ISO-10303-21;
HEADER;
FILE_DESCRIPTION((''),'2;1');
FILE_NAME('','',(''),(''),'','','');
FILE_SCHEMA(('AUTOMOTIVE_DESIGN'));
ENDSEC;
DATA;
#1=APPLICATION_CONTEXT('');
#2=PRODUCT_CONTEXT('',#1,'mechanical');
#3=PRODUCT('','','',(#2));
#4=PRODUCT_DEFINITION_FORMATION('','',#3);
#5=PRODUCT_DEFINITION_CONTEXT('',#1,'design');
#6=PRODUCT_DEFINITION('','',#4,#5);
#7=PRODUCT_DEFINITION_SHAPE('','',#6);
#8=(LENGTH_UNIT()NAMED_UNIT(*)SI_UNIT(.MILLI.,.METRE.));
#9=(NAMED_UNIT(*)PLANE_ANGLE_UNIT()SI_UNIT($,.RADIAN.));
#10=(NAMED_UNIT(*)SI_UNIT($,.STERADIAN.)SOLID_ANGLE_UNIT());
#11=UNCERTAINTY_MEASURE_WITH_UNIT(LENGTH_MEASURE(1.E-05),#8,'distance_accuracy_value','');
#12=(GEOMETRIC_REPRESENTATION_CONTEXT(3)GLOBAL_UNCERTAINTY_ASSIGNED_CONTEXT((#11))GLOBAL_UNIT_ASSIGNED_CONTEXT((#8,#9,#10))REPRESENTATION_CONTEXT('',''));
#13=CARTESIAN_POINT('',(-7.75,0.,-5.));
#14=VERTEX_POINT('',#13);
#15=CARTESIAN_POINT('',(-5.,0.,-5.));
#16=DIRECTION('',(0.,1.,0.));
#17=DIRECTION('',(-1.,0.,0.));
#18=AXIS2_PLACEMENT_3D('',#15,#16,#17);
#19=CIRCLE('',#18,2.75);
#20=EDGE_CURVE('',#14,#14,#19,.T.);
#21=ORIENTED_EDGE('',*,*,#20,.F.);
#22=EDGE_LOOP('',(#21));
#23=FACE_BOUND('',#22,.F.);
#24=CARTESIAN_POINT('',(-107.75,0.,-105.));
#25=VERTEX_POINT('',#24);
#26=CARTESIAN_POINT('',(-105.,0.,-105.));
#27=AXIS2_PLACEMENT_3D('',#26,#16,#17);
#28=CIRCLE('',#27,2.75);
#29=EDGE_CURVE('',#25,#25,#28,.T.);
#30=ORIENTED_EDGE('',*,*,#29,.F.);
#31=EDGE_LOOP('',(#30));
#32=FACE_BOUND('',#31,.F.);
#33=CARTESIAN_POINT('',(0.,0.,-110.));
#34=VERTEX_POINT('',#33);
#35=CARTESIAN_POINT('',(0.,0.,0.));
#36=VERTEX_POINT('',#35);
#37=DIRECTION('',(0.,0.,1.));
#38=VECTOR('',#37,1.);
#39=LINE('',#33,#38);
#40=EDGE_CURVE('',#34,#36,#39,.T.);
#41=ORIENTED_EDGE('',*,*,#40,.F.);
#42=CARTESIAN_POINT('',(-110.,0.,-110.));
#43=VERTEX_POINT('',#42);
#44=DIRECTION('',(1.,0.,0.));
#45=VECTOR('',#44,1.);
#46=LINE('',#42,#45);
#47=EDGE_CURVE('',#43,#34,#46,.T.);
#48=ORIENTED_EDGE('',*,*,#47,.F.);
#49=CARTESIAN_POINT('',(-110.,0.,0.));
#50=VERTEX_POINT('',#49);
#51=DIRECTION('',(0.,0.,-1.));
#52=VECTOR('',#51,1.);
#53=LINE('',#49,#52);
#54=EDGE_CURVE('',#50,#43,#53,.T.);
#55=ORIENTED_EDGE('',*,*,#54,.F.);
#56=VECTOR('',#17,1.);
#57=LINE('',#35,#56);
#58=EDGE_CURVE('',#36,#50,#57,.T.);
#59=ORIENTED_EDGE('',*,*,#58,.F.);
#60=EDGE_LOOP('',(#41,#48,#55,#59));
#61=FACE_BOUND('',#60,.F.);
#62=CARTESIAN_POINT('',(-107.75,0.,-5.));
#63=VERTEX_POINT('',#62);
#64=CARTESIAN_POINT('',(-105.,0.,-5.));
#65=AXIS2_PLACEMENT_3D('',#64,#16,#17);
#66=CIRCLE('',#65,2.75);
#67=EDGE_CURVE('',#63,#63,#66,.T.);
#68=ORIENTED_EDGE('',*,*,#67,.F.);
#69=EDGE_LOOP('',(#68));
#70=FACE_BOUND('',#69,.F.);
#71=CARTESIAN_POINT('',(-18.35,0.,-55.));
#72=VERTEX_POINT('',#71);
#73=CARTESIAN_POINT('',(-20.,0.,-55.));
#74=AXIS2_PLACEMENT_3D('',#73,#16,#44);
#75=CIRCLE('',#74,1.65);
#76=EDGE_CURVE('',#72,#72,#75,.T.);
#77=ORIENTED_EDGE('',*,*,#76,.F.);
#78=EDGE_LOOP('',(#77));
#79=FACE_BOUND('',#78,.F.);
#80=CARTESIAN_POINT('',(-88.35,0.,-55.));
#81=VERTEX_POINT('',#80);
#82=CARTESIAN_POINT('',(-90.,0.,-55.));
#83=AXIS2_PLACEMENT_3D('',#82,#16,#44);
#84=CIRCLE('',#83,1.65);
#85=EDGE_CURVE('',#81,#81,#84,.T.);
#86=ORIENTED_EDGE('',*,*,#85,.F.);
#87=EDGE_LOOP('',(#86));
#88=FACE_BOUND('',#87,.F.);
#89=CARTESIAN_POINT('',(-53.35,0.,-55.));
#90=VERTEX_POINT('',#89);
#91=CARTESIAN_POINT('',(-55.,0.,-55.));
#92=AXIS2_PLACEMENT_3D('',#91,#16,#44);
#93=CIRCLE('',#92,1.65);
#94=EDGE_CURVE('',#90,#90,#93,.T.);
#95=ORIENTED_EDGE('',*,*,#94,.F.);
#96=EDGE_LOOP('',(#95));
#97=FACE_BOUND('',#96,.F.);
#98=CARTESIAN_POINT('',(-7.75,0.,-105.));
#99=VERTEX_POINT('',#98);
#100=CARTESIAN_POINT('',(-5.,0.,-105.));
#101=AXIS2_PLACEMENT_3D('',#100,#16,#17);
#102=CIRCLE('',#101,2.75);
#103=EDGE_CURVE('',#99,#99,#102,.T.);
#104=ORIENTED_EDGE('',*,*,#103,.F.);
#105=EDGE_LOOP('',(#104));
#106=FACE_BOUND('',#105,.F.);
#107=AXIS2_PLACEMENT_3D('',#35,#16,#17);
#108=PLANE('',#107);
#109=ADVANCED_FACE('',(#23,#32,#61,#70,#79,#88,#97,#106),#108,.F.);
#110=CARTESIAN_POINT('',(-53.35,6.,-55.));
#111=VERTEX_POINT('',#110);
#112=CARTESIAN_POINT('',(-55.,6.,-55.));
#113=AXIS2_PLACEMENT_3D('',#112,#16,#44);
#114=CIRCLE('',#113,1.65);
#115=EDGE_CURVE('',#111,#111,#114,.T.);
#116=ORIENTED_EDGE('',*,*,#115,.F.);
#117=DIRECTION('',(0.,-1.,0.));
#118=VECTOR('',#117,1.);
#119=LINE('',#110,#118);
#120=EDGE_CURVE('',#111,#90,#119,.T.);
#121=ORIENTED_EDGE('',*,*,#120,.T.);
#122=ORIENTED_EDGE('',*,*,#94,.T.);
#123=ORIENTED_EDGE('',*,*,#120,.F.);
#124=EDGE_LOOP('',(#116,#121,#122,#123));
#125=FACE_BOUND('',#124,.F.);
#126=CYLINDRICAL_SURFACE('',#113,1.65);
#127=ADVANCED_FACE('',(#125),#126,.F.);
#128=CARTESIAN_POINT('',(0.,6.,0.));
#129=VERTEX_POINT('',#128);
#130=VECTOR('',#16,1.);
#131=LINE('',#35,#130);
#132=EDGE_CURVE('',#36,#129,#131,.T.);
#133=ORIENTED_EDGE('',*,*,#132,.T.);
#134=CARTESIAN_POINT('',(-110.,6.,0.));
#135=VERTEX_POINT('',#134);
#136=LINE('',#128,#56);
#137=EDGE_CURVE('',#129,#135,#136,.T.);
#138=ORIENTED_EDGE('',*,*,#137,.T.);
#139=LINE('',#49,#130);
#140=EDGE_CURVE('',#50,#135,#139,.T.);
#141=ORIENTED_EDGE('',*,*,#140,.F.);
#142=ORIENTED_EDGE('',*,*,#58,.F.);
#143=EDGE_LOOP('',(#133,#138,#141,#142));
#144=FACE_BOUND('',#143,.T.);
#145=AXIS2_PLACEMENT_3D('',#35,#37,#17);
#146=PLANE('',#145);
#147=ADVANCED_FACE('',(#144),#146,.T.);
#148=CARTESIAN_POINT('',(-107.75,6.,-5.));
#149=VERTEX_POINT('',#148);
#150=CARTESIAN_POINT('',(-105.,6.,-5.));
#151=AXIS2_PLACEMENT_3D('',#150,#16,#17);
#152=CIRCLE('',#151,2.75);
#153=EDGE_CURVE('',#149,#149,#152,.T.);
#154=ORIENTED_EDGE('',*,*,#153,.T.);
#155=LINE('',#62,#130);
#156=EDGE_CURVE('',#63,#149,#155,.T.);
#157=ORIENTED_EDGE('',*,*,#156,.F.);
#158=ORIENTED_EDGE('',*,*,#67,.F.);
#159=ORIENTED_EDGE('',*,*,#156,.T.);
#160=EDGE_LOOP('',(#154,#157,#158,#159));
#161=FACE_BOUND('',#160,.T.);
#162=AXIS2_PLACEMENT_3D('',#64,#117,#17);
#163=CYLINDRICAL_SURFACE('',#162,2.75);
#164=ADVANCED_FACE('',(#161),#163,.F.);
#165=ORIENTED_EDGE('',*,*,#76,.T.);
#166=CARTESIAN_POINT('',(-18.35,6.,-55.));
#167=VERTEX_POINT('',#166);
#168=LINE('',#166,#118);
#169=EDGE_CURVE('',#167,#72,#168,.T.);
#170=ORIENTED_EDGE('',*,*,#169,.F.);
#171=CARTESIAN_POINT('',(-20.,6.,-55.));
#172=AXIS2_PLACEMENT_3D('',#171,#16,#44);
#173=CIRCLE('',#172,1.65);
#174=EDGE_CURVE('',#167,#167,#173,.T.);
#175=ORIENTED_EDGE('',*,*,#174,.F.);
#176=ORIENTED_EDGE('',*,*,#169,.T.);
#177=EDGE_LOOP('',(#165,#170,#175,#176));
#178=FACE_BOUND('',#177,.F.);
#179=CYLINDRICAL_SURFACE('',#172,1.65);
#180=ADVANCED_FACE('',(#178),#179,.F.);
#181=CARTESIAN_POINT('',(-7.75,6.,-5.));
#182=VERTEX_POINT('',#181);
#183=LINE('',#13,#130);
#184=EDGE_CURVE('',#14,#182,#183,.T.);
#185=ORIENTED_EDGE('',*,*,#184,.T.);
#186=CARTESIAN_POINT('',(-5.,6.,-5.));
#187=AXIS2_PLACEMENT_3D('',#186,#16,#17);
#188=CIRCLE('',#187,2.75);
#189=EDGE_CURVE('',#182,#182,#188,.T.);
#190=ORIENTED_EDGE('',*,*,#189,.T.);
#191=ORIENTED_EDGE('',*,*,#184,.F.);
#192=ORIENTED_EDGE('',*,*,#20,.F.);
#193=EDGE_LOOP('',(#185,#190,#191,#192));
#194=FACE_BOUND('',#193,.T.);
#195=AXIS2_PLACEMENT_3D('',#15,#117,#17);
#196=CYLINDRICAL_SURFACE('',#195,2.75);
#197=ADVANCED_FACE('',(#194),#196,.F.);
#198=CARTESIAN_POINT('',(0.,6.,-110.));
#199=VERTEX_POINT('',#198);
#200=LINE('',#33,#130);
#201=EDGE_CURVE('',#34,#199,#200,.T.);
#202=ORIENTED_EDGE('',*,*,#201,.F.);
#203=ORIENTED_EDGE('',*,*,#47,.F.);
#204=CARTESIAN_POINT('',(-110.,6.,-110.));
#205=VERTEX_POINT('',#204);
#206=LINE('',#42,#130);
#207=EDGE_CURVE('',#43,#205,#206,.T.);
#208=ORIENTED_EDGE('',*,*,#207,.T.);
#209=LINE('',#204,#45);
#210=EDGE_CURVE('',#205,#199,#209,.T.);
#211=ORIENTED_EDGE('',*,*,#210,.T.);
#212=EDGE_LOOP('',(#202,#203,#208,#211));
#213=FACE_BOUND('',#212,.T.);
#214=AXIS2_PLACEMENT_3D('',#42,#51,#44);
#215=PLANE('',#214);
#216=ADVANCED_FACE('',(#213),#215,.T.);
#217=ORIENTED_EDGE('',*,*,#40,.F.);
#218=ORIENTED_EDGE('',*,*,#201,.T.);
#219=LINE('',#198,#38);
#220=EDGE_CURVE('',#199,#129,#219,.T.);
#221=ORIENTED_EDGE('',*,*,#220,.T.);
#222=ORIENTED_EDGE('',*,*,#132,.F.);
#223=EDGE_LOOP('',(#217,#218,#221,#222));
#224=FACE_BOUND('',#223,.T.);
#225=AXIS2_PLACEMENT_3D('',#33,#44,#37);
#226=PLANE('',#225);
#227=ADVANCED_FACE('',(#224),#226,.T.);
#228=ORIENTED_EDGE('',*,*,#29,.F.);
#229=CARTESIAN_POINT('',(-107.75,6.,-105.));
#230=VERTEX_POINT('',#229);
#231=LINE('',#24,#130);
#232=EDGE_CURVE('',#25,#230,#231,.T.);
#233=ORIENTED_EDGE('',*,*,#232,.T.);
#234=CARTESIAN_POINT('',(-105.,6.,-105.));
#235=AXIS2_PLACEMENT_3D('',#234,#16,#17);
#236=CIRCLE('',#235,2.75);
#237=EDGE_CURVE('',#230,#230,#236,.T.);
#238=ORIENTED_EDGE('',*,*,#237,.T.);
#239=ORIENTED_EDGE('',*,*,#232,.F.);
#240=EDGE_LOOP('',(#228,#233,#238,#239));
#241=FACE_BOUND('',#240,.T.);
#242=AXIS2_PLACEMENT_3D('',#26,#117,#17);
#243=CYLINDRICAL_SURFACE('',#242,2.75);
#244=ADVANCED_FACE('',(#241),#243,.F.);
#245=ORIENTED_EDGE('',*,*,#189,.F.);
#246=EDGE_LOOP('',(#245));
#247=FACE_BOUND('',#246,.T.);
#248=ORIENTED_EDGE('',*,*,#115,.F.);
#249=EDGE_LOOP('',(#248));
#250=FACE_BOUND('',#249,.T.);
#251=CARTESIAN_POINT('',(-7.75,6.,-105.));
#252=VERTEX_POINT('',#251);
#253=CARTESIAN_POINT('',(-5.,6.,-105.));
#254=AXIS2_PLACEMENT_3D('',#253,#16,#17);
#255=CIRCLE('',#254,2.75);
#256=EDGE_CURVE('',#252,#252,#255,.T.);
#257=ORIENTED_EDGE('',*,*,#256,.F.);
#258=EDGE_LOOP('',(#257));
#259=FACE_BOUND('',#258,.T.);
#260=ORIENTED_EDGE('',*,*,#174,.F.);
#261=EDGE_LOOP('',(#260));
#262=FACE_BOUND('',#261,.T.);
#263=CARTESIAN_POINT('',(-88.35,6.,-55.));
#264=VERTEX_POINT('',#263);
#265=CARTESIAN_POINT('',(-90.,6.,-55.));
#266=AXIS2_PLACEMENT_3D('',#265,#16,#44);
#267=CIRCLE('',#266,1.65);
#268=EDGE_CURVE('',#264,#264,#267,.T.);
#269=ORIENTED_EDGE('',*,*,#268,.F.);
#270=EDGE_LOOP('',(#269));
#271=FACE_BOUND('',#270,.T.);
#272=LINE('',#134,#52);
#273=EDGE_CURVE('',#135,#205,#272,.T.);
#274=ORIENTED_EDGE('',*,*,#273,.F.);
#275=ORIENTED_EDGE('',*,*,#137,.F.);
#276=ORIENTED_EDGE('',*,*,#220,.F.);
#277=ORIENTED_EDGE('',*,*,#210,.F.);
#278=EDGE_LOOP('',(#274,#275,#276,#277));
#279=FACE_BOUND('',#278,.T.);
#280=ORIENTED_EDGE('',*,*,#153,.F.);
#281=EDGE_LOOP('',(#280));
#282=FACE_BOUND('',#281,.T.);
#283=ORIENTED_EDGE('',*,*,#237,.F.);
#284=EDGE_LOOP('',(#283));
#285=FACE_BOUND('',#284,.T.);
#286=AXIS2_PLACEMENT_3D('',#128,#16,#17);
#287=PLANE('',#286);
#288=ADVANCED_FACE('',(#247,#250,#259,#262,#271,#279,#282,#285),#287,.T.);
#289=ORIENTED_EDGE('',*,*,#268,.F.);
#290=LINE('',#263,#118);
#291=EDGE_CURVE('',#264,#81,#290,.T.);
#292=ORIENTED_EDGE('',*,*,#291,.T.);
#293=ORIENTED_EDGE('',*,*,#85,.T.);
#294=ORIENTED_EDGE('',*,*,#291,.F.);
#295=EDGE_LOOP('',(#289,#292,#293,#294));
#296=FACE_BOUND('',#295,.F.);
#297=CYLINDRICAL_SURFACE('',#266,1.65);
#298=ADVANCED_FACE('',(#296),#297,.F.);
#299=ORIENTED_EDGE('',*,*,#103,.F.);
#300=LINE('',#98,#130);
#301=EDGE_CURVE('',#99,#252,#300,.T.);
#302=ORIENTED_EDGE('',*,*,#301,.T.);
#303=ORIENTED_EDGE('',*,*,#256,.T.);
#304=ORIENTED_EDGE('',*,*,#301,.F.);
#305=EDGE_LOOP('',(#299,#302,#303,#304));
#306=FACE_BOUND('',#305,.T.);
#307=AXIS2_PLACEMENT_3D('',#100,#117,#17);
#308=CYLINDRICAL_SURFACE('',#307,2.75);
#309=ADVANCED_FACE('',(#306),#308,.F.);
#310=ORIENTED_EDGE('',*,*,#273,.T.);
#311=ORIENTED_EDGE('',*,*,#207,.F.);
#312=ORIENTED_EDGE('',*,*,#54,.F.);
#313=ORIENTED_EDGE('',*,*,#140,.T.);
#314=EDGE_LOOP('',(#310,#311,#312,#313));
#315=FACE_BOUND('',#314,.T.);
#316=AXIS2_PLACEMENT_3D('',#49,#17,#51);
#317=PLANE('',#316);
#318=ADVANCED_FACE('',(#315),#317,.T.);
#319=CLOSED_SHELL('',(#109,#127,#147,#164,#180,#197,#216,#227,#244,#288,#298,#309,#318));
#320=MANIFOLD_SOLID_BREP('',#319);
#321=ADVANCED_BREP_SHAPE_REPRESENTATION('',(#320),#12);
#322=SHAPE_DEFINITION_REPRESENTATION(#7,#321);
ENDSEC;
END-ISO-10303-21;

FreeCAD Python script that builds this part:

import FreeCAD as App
import Part
import Sketcher

V = App.Vector


def add_polygon(sketch, points):
    """Adds a closed chain of lines whose ends are joined by coincident constraints."""
    first, n = sketch.GeometryCount, len(points)
    for a, b in zip(points, points[1:] + points[:1]):
        sketch.addGeometry(Part.LineSegment(App.Vector(*a, 0), App.Vector(*b, 0)), False)
    for i in range(n):
        sketch.addConstraint(Sketcher.Constraint("Coincident", first + i, 2, first + (i + 1) % n, 1))

doc = App.newDocument("Part")
body = doc.addObject("PartDesign::Body", "Body")

# Sketch on XZ plane
sketch1 = body.newObject("Sketcher::SketchObject", "Sketch")
sketch1.AttachmentSupport = (doc.getObject("XZ_Plane"), [""])
sketch1.MapMode = "FlatFace"
add_polygon(sketch1, [(-110, 0), (0, 0), (0, -110), (-110, -110)])  # lines 0-3
sketch1.addGeometry(Part.Circle(V(-5, -105, 0), V(0, 0, 1), 2.8), False)  # 4
sketch1.addGeometry(Part.Circle(V(-105, -105, 0), V(0, 0, 1), 2.8), False)  # 5
sketch1.addGeometry(Part.Circle(V(-5, -5, 0), V(0, 0, 1), 2.8), False)  # 6
sketch1.addGeometry(Part.Circle(V(-105, -5, 0), V(0, 0, 1), 2.8), False)  # 7
sketch1.addConstraint([
    Sketcher.Constraint("Horizontal", 0),
    Sketcher.Constraint("Vertical", 1),
    Sketcher.Constraint("Horizontal", 2),
    Sketcher.Constraint("Vertical", 3),
    Sketcher.Constraint("Coincident", 0, 2, -1, 1),
    Sketcher.Constraint("Equal", 4, 5),
    Sketcher.Constraint("Equal", 5, 6),
    Sketcher.Constraint("Equal", 6, 7),
    Sketcher.Constraint("Horizontal", 4, 3, 5, 3),
    Sketcher.Constraint("Horizontal", 6, 3, 7, 3),
    Sketcher.Constraint("Vertical", 4, 3, 6, 3),
    Sketcher.Constraint("Vertical", 5, 3, 7, 3),
    Sketcher.Constraint("Equal", 2, 1),
    Sketcher.Constraint("Diameter", 4, 5.5),
    Sketcher.Constraint("DistanceX", 0, 1, 0, 2, 110.0),
    Sketcher.Constraint("DistanceX", 4, 3, -1, 1, 5.0),
    Sketcher.Constraint("DistanceY", 6, 3, -1, 1, 5.0),
    Sketcher.Constraint("DistanceX", 5, 3, 4, 3, 100.0),
    Sketcher.Constraint("DistanceY", 4, 3, 6, 3, 100.0),
])
pad1 = body.newObject("PartDesign::Pad", "Pad")
pad1.Profile = sketch1
pad1.Length = 6
pad1.Reversed = True

# Sketch on XZ plane
sketch2 = body.newObject("Sketcher::SketchObject", "Sketch001")
sketch2.AttachmentSupport = (doc.getObject("XZ_Plane"), [""])
sketch2.MapMode = "FlatFace"
sketch2.AttachmentOffset = App.Placement(V(0, 0, -6), App.Rotation())
sketch2.addGeometry([
    Part.Circle(V(-20, -55, 0), V(0, 0, 1), 1.6),
    Part.Circle(V(-55, -55, 0), V(0, 0, 1), 1.6),
    Part.Circle(V(-90, -55, 0), V(0, 0, 1), 1.6),
], False)
sketch2.addConstraint([
    Sketcher.Constraint("Equal", 0, 1),
    Sketcher.Constraint("Equal", 1, 2),
    Sketcher.Constraint("Horizontal", 0, 3, 1, 3),
    Sketcher.Constraint("Horizontal", 1, 3, 2, 3),
    Sketcher.Constraint("Diameter", 0, 3.3),
    Sketcher.Constraint("DistanceX", 0, 3, -1, 1, 20.0),
    Sketcher.Constraint("DistanceX", 1, 3, 0, 3, 35.0),
    Sketcher.Constraint("DistanceX", 2, 3, 1, 3, 35.0),
    Sketcher.Constraint("DistanceY", 0, 3, -1, 1, 55.0),
])
pocket1 = body.newObject("PartDesign::Pocket", "Pocket")
pocket1.Profile = sketch2
pocket1.Length = 6
pocket1.Reversed = True

doc.recompute()
